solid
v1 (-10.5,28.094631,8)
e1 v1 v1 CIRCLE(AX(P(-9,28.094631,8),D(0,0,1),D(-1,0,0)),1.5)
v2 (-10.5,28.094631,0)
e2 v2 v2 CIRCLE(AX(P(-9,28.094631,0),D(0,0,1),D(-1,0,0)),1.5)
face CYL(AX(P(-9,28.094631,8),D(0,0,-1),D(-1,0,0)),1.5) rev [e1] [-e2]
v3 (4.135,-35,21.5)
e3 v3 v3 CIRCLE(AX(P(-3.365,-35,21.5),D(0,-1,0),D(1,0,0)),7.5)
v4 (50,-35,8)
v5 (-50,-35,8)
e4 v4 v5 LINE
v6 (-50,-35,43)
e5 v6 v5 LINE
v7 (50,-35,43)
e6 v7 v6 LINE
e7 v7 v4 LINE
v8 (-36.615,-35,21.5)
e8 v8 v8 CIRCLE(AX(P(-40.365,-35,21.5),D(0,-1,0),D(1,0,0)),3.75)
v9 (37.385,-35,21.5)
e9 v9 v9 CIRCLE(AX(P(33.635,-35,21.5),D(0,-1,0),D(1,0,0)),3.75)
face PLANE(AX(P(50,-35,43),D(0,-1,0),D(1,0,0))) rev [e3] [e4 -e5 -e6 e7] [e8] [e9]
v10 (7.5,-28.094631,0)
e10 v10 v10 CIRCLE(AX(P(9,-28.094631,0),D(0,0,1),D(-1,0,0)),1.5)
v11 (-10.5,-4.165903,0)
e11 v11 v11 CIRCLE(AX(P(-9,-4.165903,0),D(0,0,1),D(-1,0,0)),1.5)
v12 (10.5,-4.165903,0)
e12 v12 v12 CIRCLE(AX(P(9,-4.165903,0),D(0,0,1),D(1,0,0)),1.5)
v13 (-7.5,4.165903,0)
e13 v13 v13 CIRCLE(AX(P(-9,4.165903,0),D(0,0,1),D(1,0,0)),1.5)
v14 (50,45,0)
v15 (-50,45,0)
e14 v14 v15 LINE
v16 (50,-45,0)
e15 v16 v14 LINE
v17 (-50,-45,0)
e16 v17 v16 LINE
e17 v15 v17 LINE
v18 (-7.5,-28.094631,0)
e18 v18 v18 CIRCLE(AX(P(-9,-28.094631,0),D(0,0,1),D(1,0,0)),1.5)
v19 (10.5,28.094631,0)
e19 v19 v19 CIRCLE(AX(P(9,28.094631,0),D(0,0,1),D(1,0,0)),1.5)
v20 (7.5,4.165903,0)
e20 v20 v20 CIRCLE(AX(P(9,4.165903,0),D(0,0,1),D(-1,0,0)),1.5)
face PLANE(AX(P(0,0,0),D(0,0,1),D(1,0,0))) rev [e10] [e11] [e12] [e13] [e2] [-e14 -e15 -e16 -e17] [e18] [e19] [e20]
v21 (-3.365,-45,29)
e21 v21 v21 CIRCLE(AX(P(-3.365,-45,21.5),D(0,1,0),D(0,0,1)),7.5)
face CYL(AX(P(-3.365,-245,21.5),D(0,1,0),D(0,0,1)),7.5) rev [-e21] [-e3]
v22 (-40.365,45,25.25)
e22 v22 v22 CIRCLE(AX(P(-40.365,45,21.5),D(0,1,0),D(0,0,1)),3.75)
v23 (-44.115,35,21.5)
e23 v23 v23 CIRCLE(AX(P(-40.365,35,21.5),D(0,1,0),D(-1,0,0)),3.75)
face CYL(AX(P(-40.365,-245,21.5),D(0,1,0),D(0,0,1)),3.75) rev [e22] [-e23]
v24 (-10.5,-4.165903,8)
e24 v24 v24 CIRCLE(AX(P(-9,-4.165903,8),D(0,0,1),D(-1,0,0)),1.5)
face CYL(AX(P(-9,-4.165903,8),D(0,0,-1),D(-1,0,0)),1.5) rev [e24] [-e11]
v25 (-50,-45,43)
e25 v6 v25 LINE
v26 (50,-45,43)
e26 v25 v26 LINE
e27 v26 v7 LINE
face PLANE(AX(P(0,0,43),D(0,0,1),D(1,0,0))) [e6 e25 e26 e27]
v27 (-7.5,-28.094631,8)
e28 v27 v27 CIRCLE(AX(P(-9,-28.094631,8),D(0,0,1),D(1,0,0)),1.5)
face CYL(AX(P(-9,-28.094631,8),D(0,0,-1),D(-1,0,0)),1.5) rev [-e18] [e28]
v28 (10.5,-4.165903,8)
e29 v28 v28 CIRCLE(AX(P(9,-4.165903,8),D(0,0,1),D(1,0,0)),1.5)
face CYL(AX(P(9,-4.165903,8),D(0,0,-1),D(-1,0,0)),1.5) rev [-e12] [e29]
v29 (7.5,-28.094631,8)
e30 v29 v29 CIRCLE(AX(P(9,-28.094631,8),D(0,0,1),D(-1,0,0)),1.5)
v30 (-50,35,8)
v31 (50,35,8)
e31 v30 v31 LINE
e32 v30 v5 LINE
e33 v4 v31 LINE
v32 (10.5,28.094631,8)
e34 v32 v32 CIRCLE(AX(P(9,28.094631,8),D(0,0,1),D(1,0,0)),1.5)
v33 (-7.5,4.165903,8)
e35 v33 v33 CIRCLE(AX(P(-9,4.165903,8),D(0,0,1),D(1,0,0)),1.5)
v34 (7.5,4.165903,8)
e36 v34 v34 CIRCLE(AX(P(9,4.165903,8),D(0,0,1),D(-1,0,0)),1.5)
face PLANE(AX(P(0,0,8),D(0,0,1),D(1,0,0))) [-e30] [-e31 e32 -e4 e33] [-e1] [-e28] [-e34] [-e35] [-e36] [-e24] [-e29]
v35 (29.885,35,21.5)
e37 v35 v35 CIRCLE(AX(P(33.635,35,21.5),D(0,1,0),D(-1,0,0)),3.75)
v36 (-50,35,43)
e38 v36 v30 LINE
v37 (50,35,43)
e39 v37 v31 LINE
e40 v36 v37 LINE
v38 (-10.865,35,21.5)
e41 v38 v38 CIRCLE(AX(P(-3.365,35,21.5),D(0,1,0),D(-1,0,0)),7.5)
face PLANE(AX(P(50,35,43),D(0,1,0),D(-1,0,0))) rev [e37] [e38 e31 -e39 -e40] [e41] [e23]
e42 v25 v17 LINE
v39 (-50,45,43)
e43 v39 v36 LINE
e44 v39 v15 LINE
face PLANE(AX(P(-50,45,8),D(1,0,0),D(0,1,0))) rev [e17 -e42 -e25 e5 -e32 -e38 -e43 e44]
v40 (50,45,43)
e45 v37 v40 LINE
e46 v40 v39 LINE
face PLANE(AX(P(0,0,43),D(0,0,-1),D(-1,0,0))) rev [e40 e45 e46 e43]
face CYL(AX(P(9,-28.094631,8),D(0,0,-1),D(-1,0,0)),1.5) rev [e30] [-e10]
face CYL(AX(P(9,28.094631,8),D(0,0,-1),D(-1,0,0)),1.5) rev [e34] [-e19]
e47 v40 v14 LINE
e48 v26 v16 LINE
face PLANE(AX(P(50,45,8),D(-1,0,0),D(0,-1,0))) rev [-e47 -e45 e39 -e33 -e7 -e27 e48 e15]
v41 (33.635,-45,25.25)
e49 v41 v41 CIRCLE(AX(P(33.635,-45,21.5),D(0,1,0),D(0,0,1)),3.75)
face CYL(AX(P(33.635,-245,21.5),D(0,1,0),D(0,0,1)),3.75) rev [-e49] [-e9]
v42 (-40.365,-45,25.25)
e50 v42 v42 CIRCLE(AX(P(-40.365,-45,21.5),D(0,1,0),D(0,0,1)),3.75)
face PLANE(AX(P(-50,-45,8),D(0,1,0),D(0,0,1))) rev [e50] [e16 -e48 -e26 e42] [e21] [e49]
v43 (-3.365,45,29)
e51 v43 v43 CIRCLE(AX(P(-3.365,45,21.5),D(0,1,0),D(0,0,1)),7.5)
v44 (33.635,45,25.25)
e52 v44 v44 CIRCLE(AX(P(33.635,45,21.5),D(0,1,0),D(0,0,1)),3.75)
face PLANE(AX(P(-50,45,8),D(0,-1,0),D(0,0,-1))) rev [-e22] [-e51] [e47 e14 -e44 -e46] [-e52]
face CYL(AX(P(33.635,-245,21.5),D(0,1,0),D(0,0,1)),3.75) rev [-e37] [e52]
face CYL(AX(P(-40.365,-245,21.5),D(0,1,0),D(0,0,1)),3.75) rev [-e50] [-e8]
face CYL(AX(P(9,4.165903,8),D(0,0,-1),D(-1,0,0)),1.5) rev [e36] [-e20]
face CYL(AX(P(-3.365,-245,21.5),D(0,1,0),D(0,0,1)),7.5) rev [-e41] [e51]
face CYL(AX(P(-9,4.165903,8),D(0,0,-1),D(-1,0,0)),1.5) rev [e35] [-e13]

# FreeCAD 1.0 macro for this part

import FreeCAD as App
import Part
import Sketcher

V = App.Vector


def add_polygon(sketch, points):
    """Adds a closed chain of lines whose ends are joined by coincident constraints."""
    first, n = sketch.GeometryCount, len(points)
    for a, b in zip(points, points[1:] + points[:1]):
        sketch.addGeometry(Part.LineSegment(App.Vector(*a, 0), App.Vector(*b, 0)), False)
    for i in range(n):
        sketch.addConstraint(Sketcher.Constraint("Coincident", first + i, 2, first + (i + 1) % n, 1))

doc = App.newDocument("Part")
body = doc.addObject("PartDesign::Body", "Body")

sketch1 = doc.addObject("Sketcher::SketchObject", "Sketch")
body.addObject(sketch1)
sketch1.AttachmentSupport = (doc.XY_Plane, [""])
sketch1.MapMode = "FlatFace"
add_polygon(sketch1, [(-50, 45), (-50, -45), (50, -45), (50, 45)])
sketch1.addGeometry(Part.Circle(V(-9, -28.094631, 0), V(0, 0, 1), 1.5), False)
sketch1.addGeometry(Part.Circle(V(-9, -4.165903, 0), V(0, 0, 1), 1.5), False)
sketch1.addGeometry(Part.Circle(V(9, -28.094631, 0), V(0, 0, 1), 1.5), False)
sketch1.addGeometry(Part.Circle(V(9, -4.165903, 0), V(0, 0, 1), 1.5), False)
sketch1.addGeometry(Part.Circle(V(-9, 4.165903, 0), V(0, 0, 1), 1.5), False)
sketch1.addGeometry(Part.Circle(V(-9, 28.094631, 0), V(0, 0, 1), 1.5), False)
sketch1.addGeometry(Part.Circle(V(9, 4.165903, 0), V(0, 0, 1), 1.5), False)
sketch1.addGeometry(Part.Circle(V(9, 28.094631, 0), V(0, 0, 1), 1.5), False)
sketch1.addConstraint([
    Sketcher.Constraint("Vertical", 0),
    Sketcher.Constraint("Horizontal", 1),
    Sketcher.Constraint("Vertical", 2),
    Sketcher.Constraint("Horizontal", 3),
    Sketcher.Constraint("Equal", 4, 5),
    Sketcher.Constraint("Equal", 5, 6),
    Sketcher.Constraint("Equal", 6, 7),
    Sketcher.Constraint("Equal", 7, 8),
    Sketcher.Constraint("Equal", 8, 9),
    Sketcher.Constraint("Equal", 9, 10),
    Sketcher.Constraint("Equal", 10, 11),
    Sketcher.Constraint("Symmetric", 7, 3, 8, 3, -1, 1),
    Sketcher.Constraint("Symmetric", 6, 3, 9, 3, -1, 1),
    Sketcher.Constraint("Symmetric", 5, 3, 10, 3, -1, 1),
    Sketcher.Constraint("Symmetric", 4, 3, 11, 3, -1, 1),
    Sketcher.Constraint("Symmetric", 0, 2, 2, 2, -1, 1),
    Sketcher.Constraint("Symmetric", 4, 3, 6, 3, -2),
    Sketcher.Constraint("Symmetric", 5, 3, 7, 3, -2),
    Sketcher.Constraint("Vertical", 4, 3, 5, 3),
    Sketcher.Constraint("Diameter", 4, 3.0),
    Sketcher.Constraint("DistanceX", 1, 1, 1, 2, 100.0),
    Sketcher.Constraint("DistanceY", 0, 2, 0, 1, 90.0),
    Sketcher.Constraint("DistanceX", 4, 3, -1, 1, 9.0),
    Sketcher.Constraint("DistanceY", 4, 3, -1, 1, 28.094631),
    Sketcher.Constraint("DistanceY", 4, 3, 5, 3, 23.928728),
])
pad1 = doc.addObject("PartDesign::Pad", "Pad")
body.addObject(pad1)
pad1.Profile = sketch1
pad1.Length = 8

sketch2 = doc.addObject("Sketcher::SketchObject", "Sketch001")
body.addObject(sketch2)
sketch2.AttachmentSupport = (doc.XY_Plane, [""])
sketch2.MapMode = "FlatFace"
sketch2.AttachmentOffset = App.Placement(V(0, 0, 8), App.Rotation())
add_polygon(sketch2, [(-50, 45), (-50, 35), (50, 35), (50, 45)])
add_polygon(sketch2, [(-50, -35), (-50, -45), (50, -45), (50, -35)])
sketch2.addConstraint([
    Sketcher.Constraint("Vertical", 0),
    Sketcher.Constraint("Horizontal", 1),
    Sketcher.Constraint("Vertical", 2),
    Sketcher.Constraint("Horizontal", 3),
    Sketcher.Constraint("Vertical", 4),
    Sketcher.Constraint("Horizontal", 5),
    Sketcher.Constraint("Vertical", 6),
    Sketcher.Constraint("Horizontal", 7),
    Sketcher.Constraint("Symmetric", 2, 2, 4, 2, -1, 1),
    Sketcher.Constraint("Symmetric", 0, 2, 6, 2, -1, 1),
    Sketcher.Constraint("Vertical", 3, 2, 4, 2),
    Sketcher.Constraint("DistanceX", 1, 1, 1, 2, 100.0),
    Sketcher.Constraint("DistanceY", 0, 2, 0, 1, 10.0),
    Sketcher.Constraint("DistanceY", -1, 1, 0, 2, 35.0),
])
pad2 = doc.addObject("PartDesign::Pad", "Pad001")
body.addObject(pad2)
pad2.Profile = sketch2
pad2.Length = 35

sketch3 = doc.addObject("Sketcher::SketchObject", "Sketch002")
body.addObject(sketch3)
sketch3.AttachmentSupport = (doc.XZ_Plane, [""])
sketch3.MapMode = "FlatFace"
sketch3.AttachmentOffset = App.Placement(V(0, 0, -45), App.Rotation())
sketch3.addGeometry([
    Part.Circle(V(-3.365, 21.5, 0), V(0, 0, 1), 7.5),
    Part.Circle(V(-40.365, 21.5, 0), V(0, 0, 1), 3.75),
    Part.Circle(V(33.635, 21.5, 0), V(0, 0, 1), 3.75),
], False)
sketch3.addConstraint([
    Sketcher.Constraint("Equal", 1, 2),
    Sketcher.Constraint("Horizontal", 0, 3, 1, 3),
    Sketcher.Constraint("Horizontal", 1, 3, 2, 3),
    Sketcher.Constraint("Diameter", 0, 15.0),
    Sketcher.Constraint("Diameter", 1, 7.5),
    Sketcher.Constraint("DistanceX", 1, 3, 0, 3, 37.0),
    Sketcher.Constraint("DistanceX", 0, 3, 2, 3, 37.0),
    Sketcher.Constraint("DistanceY", -1, 1, 0, 3, 21.5),
    Sketcher.Constraint("DistanceX", 0, 3, -1, 1, 3.365),
])
pocket1 = doc.addObject("PartDesign::Pocket", "Pocket")
body.addObject(pocket1)
pocket1.Profile = sketch3
pocket1.Length = 290
pocket1.Reversed = True

doc.recompute()
